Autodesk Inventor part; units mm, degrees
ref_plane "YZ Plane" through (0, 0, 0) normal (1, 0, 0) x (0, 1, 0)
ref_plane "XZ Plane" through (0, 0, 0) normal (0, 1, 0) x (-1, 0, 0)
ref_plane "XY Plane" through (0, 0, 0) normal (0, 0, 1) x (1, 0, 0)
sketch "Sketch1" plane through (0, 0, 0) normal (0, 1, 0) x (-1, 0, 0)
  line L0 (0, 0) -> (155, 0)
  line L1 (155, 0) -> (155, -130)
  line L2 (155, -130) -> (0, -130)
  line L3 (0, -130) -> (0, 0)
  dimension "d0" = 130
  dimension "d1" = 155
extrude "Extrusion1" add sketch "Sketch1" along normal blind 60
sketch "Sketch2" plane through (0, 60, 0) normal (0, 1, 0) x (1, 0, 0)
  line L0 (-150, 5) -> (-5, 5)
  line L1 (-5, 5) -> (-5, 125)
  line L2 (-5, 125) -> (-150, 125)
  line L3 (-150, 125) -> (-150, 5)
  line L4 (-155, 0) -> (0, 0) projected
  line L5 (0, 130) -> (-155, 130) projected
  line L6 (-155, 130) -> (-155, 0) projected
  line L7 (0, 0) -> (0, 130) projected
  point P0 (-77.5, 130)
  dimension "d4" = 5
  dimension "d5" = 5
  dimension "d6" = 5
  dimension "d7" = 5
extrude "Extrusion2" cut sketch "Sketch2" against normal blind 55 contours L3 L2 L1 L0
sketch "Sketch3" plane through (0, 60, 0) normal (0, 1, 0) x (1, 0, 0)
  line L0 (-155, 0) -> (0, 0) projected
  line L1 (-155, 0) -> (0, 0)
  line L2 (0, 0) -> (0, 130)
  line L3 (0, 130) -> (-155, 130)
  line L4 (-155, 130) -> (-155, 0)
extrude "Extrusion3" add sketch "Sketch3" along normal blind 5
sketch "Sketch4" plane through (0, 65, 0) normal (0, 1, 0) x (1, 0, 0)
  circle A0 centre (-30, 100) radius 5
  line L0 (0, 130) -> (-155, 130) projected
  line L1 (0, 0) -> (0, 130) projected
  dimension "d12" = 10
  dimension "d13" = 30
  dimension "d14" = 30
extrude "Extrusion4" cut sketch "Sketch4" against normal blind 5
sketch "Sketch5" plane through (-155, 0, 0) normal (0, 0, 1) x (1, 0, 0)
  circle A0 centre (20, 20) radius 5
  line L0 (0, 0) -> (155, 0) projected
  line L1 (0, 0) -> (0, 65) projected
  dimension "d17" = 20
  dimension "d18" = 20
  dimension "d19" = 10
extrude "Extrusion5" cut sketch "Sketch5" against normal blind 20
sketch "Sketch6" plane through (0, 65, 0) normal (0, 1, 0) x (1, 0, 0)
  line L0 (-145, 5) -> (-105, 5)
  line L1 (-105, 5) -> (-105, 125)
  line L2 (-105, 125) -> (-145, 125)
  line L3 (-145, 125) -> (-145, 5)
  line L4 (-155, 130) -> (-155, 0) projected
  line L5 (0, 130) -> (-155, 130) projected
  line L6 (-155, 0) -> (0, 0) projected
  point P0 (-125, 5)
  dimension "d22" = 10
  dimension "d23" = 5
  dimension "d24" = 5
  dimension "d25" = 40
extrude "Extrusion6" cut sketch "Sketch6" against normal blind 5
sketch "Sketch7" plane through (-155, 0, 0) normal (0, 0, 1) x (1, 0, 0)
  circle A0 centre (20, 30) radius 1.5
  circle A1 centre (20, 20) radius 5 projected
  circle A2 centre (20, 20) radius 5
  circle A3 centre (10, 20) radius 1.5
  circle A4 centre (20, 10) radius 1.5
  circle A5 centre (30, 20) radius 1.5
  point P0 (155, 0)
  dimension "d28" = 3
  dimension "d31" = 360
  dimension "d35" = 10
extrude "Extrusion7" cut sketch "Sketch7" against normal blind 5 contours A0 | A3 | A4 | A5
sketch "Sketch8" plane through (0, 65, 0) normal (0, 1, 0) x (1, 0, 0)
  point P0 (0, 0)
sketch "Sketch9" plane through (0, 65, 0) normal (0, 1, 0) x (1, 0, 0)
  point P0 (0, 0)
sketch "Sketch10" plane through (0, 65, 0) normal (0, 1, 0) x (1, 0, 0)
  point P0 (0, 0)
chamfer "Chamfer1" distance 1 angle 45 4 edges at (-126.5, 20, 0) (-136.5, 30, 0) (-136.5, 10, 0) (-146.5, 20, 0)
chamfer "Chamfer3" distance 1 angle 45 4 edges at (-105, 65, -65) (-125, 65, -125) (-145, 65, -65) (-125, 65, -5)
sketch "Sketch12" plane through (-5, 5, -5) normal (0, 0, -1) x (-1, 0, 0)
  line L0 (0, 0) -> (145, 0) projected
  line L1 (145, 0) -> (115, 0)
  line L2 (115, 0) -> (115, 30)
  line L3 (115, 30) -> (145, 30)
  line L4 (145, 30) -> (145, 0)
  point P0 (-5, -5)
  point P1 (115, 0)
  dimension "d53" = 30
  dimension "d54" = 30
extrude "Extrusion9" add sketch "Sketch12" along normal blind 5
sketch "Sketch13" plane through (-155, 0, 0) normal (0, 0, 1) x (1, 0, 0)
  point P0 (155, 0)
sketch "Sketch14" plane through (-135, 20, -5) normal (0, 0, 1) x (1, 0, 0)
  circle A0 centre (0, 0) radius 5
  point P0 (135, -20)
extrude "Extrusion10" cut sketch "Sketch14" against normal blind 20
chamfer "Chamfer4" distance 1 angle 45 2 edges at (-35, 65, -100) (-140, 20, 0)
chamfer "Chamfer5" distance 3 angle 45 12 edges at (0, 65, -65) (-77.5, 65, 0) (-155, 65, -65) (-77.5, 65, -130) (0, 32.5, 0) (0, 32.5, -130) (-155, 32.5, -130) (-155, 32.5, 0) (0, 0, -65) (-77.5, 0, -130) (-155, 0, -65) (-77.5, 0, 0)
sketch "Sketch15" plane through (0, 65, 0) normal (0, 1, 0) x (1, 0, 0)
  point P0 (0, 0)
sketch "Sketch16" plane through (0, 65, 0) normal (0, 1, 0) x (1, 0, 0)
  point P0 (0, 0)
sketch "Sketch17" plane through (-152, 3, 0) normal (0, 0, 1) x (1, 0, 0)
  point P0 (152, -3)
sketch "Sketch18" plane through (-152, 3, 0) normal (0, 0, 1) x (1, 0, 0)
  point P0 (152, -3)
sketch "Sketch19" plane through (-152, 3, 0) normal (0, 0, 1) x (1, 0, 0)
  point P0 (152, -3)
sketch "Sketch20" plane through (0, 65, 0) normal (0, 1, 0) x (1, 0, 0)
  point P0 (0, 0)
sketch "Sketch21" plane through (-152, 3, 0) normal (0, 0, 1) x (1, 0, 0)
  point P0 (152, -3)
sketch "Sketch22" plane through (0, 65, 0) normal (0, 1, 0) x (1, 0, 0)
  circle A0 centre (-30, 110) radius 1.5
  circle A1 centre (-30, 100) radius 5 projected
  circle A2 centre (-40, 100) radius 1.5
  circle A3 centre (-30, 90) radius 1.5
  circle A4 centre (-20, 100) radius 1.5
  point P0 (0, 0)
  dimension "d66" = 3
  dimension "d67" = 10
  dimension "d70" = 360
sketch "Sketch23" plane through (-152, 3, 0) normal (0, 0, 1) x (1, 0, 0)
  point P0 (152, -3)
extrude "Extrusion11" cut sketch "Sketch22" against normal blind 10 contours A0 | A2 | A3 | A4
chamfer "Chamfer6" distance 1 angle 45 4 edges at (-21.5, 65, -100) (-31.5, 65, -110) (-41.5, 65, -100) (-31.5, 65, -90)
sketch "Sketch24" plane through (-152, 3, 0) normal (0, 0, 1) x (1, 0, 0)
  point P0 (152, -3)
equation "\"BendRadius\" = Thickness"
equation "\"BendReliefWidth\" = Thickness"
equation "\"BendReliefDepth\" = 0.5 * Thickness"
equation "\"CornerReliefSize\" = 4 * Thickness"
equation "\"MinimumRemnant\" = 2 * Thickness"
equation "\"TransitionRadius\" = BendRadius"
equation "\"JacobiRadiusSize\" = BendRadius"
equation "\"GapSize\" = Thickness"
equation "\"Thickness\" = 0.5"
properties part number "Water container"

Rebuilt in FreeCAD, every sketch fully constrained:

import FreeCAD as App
import Part
import Sketcher
from FreeCAD import Vector
Q = App.Units.Quantity


def edges_at(feature, points):
    """Names of the edges that pass closest to the given points."""
    edges = feature.Shape.Edges
    near = lambda p: min(range(len(edges)), key=lambda i: edges[i].distToShape(Part.Vertex(*p))[0])
    return sorted({f"Edge{near(p) + 1}" for p in points})

doc = App.newDocument("Part")
params = doc.addObject("Spreadsheet::Sheet", "Params")
for row, (alias, value) in enumerate([
    ("sketch1_width", "155 mm"),
    ("sketch1_height", "130 mm"),
    ("pad1_length", "60 mm"),
    ("sketch2_width", "145 mm"),
    ("sketch2_height", "120 mm"),
    ("pocket1_length", "55 mm"),
    ("sketch3_width", "155 mm"),
    ("sketch3_height", "130 mm"),
    ("pad2_length", "5 mm"),
    ("sketch4_diameter", "10 mm"),
    ("pocket2_length", "5 mm"),
    ("sketch5_diameter", "10 mm"),
    ("pocket3_length", "20 mm"),
    ("sketch6_width", "40 mm"),
    ("sketch6_height", "120 mm"),
    ("pocket4_length", "5 mm"),
    ("sketch7_diameter", "3 mm"),
    ("pocket5_length", "5 mm"),
    ("chamfer_size", "1 mm"),
    ("chamfer2_size", "1 mm"),
    ("sketch8_width", "30 mm"),
    ("pad3_length", "5 mm"),
    ("sketch9_diameter", "10 mm"),
    ("pocket6_length", "20 mm"),
    ("chamfer3_size", "1 mm"),
    ("chamfer4_size", "3 mm"),
    ("sketch10_diameter", "3 mm"),
    ("pocket7_length", "10 mm"),
    ("chamfer5_size", "1 mm"),
], start=1):
    params.set(f"A{row}", alias)
    params.set(f"B{row}", "=" + value)
    params.setAlias(f"B{row}", alias)

body = doc.addObject("PartDesign::Body", "Body")

# Sketch on XZ plane
sketch1 = body.newObject("Sketcher::SketchObject", "Sketch")
sketch1.AttachmentSupport = (doc.getObject("XZ_Plane"), [""])
sketch1.MapMode = "FlatFace"
sketch1.addGeometry([
    Part.LineSegment(Vector(-155, 0, 0), Vector(0, 0, 0)),
    Part.LineSegment(Vector(0, 0, 0), Vector(0, -130, 0)),
    Part.LineSegment(Vector(0, -130, 0), Vector(-155, -130, 0)),
    Part.LineSegment(Vector(-155, -130, 0), Vector(-155, 0, 0)),
], False)
sketch1.addConstraint([
    Sketcher.Constraint("Coincident", 0, 2, 1, 1),
    Sketcher.Constraint("Coincident", 1, 2, 2, 1),
    Sketcher.Constraint("Coincident", 2, 2, 3, 1),
    Sketcher.Constraint("Coincident", 3, 2, 0, 1),
    Sketcher.Constraint("Horizontal", 0),
    Sketcher.Constraint("Vertical", 1),
    Sketcher.Constraint("Horizontal", 2),
    Sketcher.Constraint("Vertical", 3),
    Sketcher.Constraint("Coincident", 0, 2, -1, 1),
    Sketcher.Constraint("DistanceX", 0, 1, 0, 2, Q("155 mm")),
    Sketcher.Constraint("DistanceY", 1, 2, 1, 1, Q("130 mm")),
])
sketch1.setExpression("Constraints[9]", "Params.sketch1_width")
sketch1.setExpression("Constraints[10]", "Params.sketch1_height")
pad1 = body.newObject("PartDesign::Pad", "Pad")
pad1.Profile = sketch1
pad1.setExpression("Length", "Params.pad1_length")
pad1.Reversed = True

# Sketch on XZ plane
sketch2 = body.newObject("Sketcher::SketchObject", "Sketch001")
sketch2.AttachmentSupport = (doc.getObject("XZ_Plane"), [""])
sketch2.MapMode = "FlatFace"
sketch2.AttachmentOffset = App.Placement(Vector(0, 0, -60), App.Rotation())
sketch2.addGeometry([
    Part.LineSegment(Vector(-150, -125, 0), Vector(-150, -5, 0)),
    Part.LineSegment(Vector(-150, -5, 0), Vector(-5, -5, 0)),
    Part.LineSegment(Vector(-5, -5, 0), Vector(-5, -125, 0)),
    Part.LineSegment(Vector(-5, -125, 0), Vector(-150, -125, 0)),
], False)
sketch2.addConstraint([
    Sketcher.Constraint("Coincident", 0, 2, 1, 1),
    Sketcher.Constraint("Coincident", 1, 2, 2, 1),
    Sketcher.Constraint("Coincident", 2, 2, 3, 1),
    Sketcher.Constraint("Coincident", 3, 2, 0, 1),
    Sketcher.Constraint("Vertical", 0),
    Sketcher.Constraint("Horizontal", 1),
    Sketcher.Constraint("Vertical", 2),
    Sketcher.Constraint("Horizontal", 3),
    Sketcher.Constraint("DistanceY", 0, 2, -1, 1, Q("5 mm")),
    Sketcher.Constraint("DistanceX", 1, 2, -1, 1, Q("5 mm")),
    Sketcher.Constraint("DistanceX", 1, 1, 1, 2, Q("145 mm")),
    Sketcher.Constraint("DistanceY", 0, 1, 0, 2, Q("120 mm")),
])
sketch2.setExpression("Constraints[10]", "Params.sketch2_width")
sketch2.setExpression("Constraints[11]", "Params.sketch2_height")
pocket1 = body.newObject("PartDesign::Pocket", "Pocket")
pocket1.Profile = sketch2
pocket1.setExpression("Length", "Params.pocket1_length")
pocket1.Reversed = True

# Sketch on XZ plane
sketch3 = body.newObject("Sketcher::SketchObject", "Sketch002")
sketch3.AttachmentSupport = (doc.getObject("XZ_Plane"), [""])
sketch3.MapMode = "FlatFace"
sketch3.AttachmentOffset = App.Placement(Vector(0, 0, -60), App.Rotation())
sketch3.addGeometry([
    Part.LineSegment(Vector(-155, -130, 0), Vector(-155, 0, 0)),
    Part.LineSegment(Vector(-155, 0, 0), Vector(0, 0, 0)),
    Part.LineSegment(Vector(0, 0, 0), Vector(0, -130, 0)),
    Part.LineSegment(Vector(0, -130, 0), Vector(-155, -130, 0)),
], False)
sketch3.addConstraint([
    Sketcher.Constraint("Coincident", 0, 2, 1, 1),
    Sketcher.Constraint("Coincident", 1, 2, 2, 1),
    Sketcher.Constraint("Coincident", 2, 2, 3, 1),
    Sketcher.Constraint("Coincident", 3, 2, 0, 1),
    Sketcher.Constraint("Vertical", 0),
    Sketcher.Constraint("Horizontal", 1),
    Sketcher.Constraint("Vertical", 2),
    Sketcher.Constraint("Horizontal", 3),
    Sketcher.Constraint("Coincident", 1, 2, -1, 1),
    Sketcher.Constraint("DistanceX", 1, 1, 1, 2, Q("155 mm")),
    Sketcher.Constraint("DistanceY", 0, 1, 0, 2, Q("130 mm")),
])
sketch3.setExpression("Constraints[9]", "Params.sketch3_width")
sketch3.setExpression("Constraints[10]", "Params.sketch3_height")
pad2 = body.newObject("PartDesign::Pad", "Pad001")
pad2.Profile = sketch3
pad2.setExpression("Length", "Params.pad2_length")
pad2.Reversed = True

# Sketch on XZ plane
sketch4 = body.newObject("Sketcher::SketchObject", "Sketch003")
sketch4.AttachmentSupport = (doc.getObject("XZ_Plane"), [""])
sketch4.MapMode = "FlatFace"
sketch4.AttachmentOffset = App.Placement(Vector(0, 0, -65), App.Rotation())
sketch4.addGeometry(Part.Circle(Vector(-30, -100, 0), Vector(0, 0, 1), 5), False)
sketch4.addConstraint([
    Sketcher.Constraint("Diameter", 0, Q("10 mm")),
    Sketcher.Constraint("DistanceX", 0, 3, -1, 1, Q("30 mm")),
    Sketcher.Constraint("DistanceY", 0, 3, -1, 1, Q("100 mm")),
])
sketch4.setExpression("Constraints[0]", "Params.sketch4_diameter")
pocket2 = body.newObject("PartDesign::Pocket", "Pocket001")
pocket2.Profile = sketch4
pocket2.setExpression("Length", "Params.pocket2_length")
pocket2.Reversed = True

# Sketch on XY plane
sketch5 = body.newObject("Sketcher::SketchObject", "Sketch004")
sketch5.AttachmentSupport = (doc.getObject("XY_Plane"), [""])
sketch5.MapMode = "FlatFace"
sketch5.addGeometry(Part.Circle(Vector(-135, 20, 0), Vector(0, 0, 1), 5), False)
sketch5.addConstraint([
    Sketcher.Constraint("Diameter", 0, Q("10 mm")),
    Sketcher.Constraint("DistanceY", -1, 1, 0, 3, Q("20 mm")),
    Sketcher.Constraint("DistanceX", 0, 3, -1, 1, Q("135 mm")),
])
sketch5.setExpression("Constraints[0]", "Params.sketch5_diameter")
pocket3 = body.newObject("PartDesign::Pocket", "Pocket002")
pocket3.Profile = sketch5
pocket3.setExpression("Length", "Params.pocket3_length")

# Sketch on XZ plane
sketch6 = body.newObject("Sketcher::SketchObject", "Sketch005")
sketch6.AttachmentSupport = (doc.getObject("XZ_Plane"), [""])
sketch6.MapMode = "FlatFace"
sketch6.AttachmentOffset = App.Placement(Vector(0, 0, -65), App.Rotation())
sketch6.addGeometry([
    Part.LineSegment(Vector(-145, -125, 0), Vector(-145, -5, 0)),
    Part.LineSegment(Vector(-145, -5, 0), Vector(-105, -5, 0)),
    Part.LineSegment(Vector(-105, -5, 0), Vector(-105, -125, 0)),
    Part.LineSegment(Vector(-105, -125, 0), Vector(-145, -125, 0)),
], False)
sketch6.addConstraint([
    Sketcher.Constraint("Coincident", 0, 2, 1, 1),
    Sketcher.Constraint("Coincident", 1, 2, 2, 1),
    Sketcher.Constraint("Coincident", 2, 2, 3, 1),
    Sketcher.Constraint("Coincident", 3, 2, 0, 1),
    Sketcher.Constraint("Vertical", 0),
    Sketcher.Constraint("Horizontal", 1),
    Sketcher.Constraint("Vertical", 2),
    Sketcher.Constraint("Horizontal", 3),
    Sketcher.Constraint("DistanceX", 1, 1, 1, 2, Q("40 mm")),
    Sketcher.Constraint("DistanceY", 0, 2, -1, 1, Q("5 mm")),
    Sketcher.Constraint("DistanceY", 0, 1, 0, 2, Q("120 mm")),
    Sketcher.Constraint("DistanceX", 0, 2, -1, 1, Q("145 mm")),
])
sketch6.setExpression("Constraints[8]", "Params.sketch6_width")
sketch6.setExpression("Constraints[10]", "Params.sketch6_height")
pocket4 = body.newObject("PartDesign::Pocket", "Pocket003")
pocket4.Profile = sketch6
pocket4.setExpression("Length", "Params.pocket4_length")
pocket4.Reversed = True

# Sketch on XY plane
sketch7 = body.newObject("Sketcher::SketchObject", "Sketch006")
sketch7.AttachmentSupport = (doc.getObject("XY_Plane"), [""])
sketch7.MapMode = "FlatFace"
sketch7.addGeometry([
    Part.Circle(Vector(-135, 30, 0), Vector(0, 0, 1), 1.5),
    Part.Circle(Vector(-145, 20, 0), Vector(0, 0, 1), 1.5),
    Part.Circle(Vector(-135, 10, 0), Vector(0, 0, 1), 1.5),
    Part.Circle(Vector(-125, 20, 0), Vector(0, 0, 1), 1.5),
], False)
sketch7.addConstraint([
    Sketcher.Constraint("Equal", 0, 1),
    Sketcher.Constraint("Equal", 1, 2),
    Sketcher.Constraint("Equal", 2, 3),
    Sketcher.Constraint("Horizontal", 1, 3, 3, 3),
    Sketcher.Constraint("Vertical", 0, 3, 2, 3),
    Sketcher.Constraint("Diameter", 0, Q("3 mm")),
    Sketcher.Constraint("DistanceY", -1, 1, 2, 3, Q("10 mm")),
    Sketcher.Constraint("DistanceX", 1, 3, 0, 3, Q("10 mm")),
    Sketcher.Constraint("DistanceY", 1, 3, 0, 3, Q("10 mm")),
    Sketcher.Constraint("DistanceY", 2, 3, 1, 3, Q("10 mm")),
    Sketcher.Constraint("DistanceX", 0, 3, 3, 3, Q("10 mm")),
    Sketcher.Constraint("DistanceX", 0, 3, -1, 1, Q("135 mm")),
])
sketch7.setExpression("Constraints[5]", "Params.sketch7_diameter")
pocket5 = body.newObject("PartDesign::Pocket", "Pocket004")
pocket5.Profile = sketch7
pocket5.setExpression("Length", "Params.pocket5_length")
doc.recompute()

chamfer = body.newObject("PartDesign::Chamfer", "Chamfer")
chamfer.Base = (pocket5, edges_at(pocket5, [
    (-126.5, 20, 0),
    (-136.5, 30, 0),
    (-136.5, 10, 0),
    (-146.5, 20, 0),
]))
chamfer.setExpression("Size", "Params.chamfer_size")
doc.recompute()

chamfer2 = body.newObject("PartDesign::Chamfer", "Chamfer001")
chamfer2.Base = (chamfer, edges_at(chamfer, [
    (-105, 65, -65),
    (-125, 65, -125),
    (-145, 65, -65),
    (-125, 65, -5),
]))
chamfer2.setExpression("Size", "Params.chamfer2_size")

# Sketch on XY plane
sketch8 = body.newObject("Sketcher::SketchObject", "Sketch007")
sketch8.AttachmentSupport = (doc.getObject("XY_Plane"), [""])
sketch8.MapMode = "FlatFace"
sketch8.AttachmentOffset = App.Placement(Vector(0, 0, -5), App.Rotation())
sketch8.addGeometry([
    Part.LineSegment(Vector(-120, 35, 0), Vector(-120, 5, 0)),
    Part.LineSegment(Vector(-120, 5, 0), Vector(-150, 5, 0)),
    Part.LineSegment(Vector(-150, 5, 0), Vector(-150, 35, 0)),
    Part.LineSegment(Vector(-150, 35, 0), Vector(-120, 35, 0)),
], False)
sketch8.addConstraint([
    Sketcher.Constraint("Coincident", 0, 2, 1, 1),
    Sketcher.Constraint("Coincident", 1, 2, 2, 1),
    Sketcher.Constraint("Coincident", 2, 2, 3, 1),
    Sketcher.Constraint("Coincident", 3, 2, 0, 1),
    Sketcher.Constraint("Vertical", 0),
    Sketcher.Constraint("Horizontal", 1),
    Sketcher.Constraint("Vertical", 2),
    Sketcher.Constraint("Horizontal", 3),
    Sketcher.Constraint("Equal", 3, 0),
    Sketcher.Constraint("DistanceX", 1, 2, 1, 1, Q("30 mm")),
    Sketcher.Constraint("DistanceX", 0, 2, -1, 1, Q("120 mm")),
    Sketcher.Constraint("DistanceY", -1, 1, 0, 2, Q("5 mm")),
])
sketch8.setExpression("Constraints[9]", "Params.sketch8_width")
pad3 = body.newObject("PartDesign::Pad", "Pad002")
pad3.Profile = sketch8
pad3.setExpression("Length", "Params.pad3_length")
pad3.Reversed = True

# Sketch on XY plane
sketch9 = body.newObject("Sketcher::SketchObject", "Sketch008")
sketch9.AttachmentSupport = (doc.getObject("XY_Plane"), [""])
sketch9.MapMode = "FlatFace"
sketch9.AttachmentOffset = App.Placement(Vector(0, 0, -5), App.Rotation())
sketch9.addGeometry(Part.Circle(Vector(-135, 20, 0), Vector(0, 0, 1), 5), False)
sketch9.addConstraint([
    Sketcher.Constraint("Diameter", 0, Q("10 mm")),
    Sketcher.Constraint("DistanceX", 0, 3, -1, 1, Q("135 mm")),
    Sketcher.Constraint("DistanceY", -1, 1, 0, 3, Q("20 mm")),
])
sketch9.setExpression("Constraints[0]", "Params.sketch9_diameter")
pocket6 = body.newObject("PartDesign::Pocket", "Pocket005")
pocket6.Profile = sketch9
pocket6.setExpression("Length", "Params.pocket6_length")
doc.recompute()

chamfer3 = body.newObject("PartDesign::Chamfer", "Chamfer002")
chamfer3.Base = (pocket6, edges_at(pocket6, [(-35, 65, -100), (-140, 20, 0)]))
chamfer3.setExpression("Size", "Params.chamfer3_size")
doc.recompute()

chamfer4 = body.newObject("PartDesign::Chamfer", "Chamfer003")
chamfer4.Base = (chamfer3, edges_at(chamfer3, [
    (0, 65, -65),
    (-77.5, 65, 0),
    (-155, 65, -65),
    (-77.5, 65, -130),
    (0, 32.5, 0),
    (0, 32.5, -130),
    (-155, 32.5, -130),
    (-155, 32.5, 0),
    (0, 0, -65),
    (-77.5, 0, -130),
    (-155, 0, -65),
    (-77.5, 0, 0),
]))
chamfer4.setExpression("Size", "Params.chamfer4_size")

# Sketch on XZ plane
sketch10 = body.newObject("Sketcher::SketchObject", "Sketch009")
sketch10.AttachmentSupport = (doc.getObject("XZ_Plane"), [""])
sketch10.MapMode = "FlatFace"
sketch10.AttachmentOffset = App.Placement(Vector(0, 0, -65), App.Rotation())
sketch10.addGeometry([
    Part.Circle(Vector(-30, -110, 0), Vector(0, 0, 1), 1.5),
    Part.Circle(Vector(-40, -100, 0), Vector(0, 0, 1), 1.5),
    Part.Circle(Vector(-30, -90, 0), Vector(0, 0, 1), 1.5),
    Part.Circle(Vector(-20, -100, 0), Vector(0, 0, 1), 1.5),
], False)
sketch10.addConstraint([
    Sketcher.Constraint("Equal", 0, 1),
    Sketcher.Constraint("Equal", 1, 2),
    Sketcher.Constraint("Equal", 2, 3),
    Sketcher.Constraint("Horizontal", 1, 3, 3, 3),
    Sketcher.Constraint("Vertical", 0, 3, 2, 3),
    Sketcher.Constraint("Diameter", 0, Q("3 mm")),
    Sketcher.Constraint("DistanceX", 1, 3, 0, 3, Q("10 mm")),
    Sketcher.Constraint("DistanceY", 0, 3, 1, 3, Q("10 mm")),
    Sketcher.Constraint("DistanceY", 1, 3, 2, 3, Q("10 mm")),
    Sketcher.Constraint("DistanceX", 0, 3, 3, 3, Q("10 mm")),
    Sketcher.Constraint("DistanceX", 0, 3, -1, 1, Q("30 mm")),
    Sketcher.Constraint("DistanceY", 0, 3, -1, 1, Q("110 mm")),
])
sketch10.setExpression("Constraints[5]", "Params.sketch10_diameter")
pocket7 = body.newObject("PartDesign::Pocket", "Pocket006")
pocket7.Profile = sketch10
pocket7.setExpression("Length", "Params.pocket7_length")
pocket7.Reversed = True
doc.recompute()

chamfer5 = body.newObject("PartDesign::Chamfer", "Chamfer004")
chamfer5.Base = (pocket7, edges_at(pocket7, [
    (-21.5, 65, -100),
    (-31.5, 65, -110),
    (-41.5, 65, -100),
    (-31.5, 65, -90),
]))
chamfer5.setExpression("Size", "Params.chamfer5_size")

doc.recompute()
